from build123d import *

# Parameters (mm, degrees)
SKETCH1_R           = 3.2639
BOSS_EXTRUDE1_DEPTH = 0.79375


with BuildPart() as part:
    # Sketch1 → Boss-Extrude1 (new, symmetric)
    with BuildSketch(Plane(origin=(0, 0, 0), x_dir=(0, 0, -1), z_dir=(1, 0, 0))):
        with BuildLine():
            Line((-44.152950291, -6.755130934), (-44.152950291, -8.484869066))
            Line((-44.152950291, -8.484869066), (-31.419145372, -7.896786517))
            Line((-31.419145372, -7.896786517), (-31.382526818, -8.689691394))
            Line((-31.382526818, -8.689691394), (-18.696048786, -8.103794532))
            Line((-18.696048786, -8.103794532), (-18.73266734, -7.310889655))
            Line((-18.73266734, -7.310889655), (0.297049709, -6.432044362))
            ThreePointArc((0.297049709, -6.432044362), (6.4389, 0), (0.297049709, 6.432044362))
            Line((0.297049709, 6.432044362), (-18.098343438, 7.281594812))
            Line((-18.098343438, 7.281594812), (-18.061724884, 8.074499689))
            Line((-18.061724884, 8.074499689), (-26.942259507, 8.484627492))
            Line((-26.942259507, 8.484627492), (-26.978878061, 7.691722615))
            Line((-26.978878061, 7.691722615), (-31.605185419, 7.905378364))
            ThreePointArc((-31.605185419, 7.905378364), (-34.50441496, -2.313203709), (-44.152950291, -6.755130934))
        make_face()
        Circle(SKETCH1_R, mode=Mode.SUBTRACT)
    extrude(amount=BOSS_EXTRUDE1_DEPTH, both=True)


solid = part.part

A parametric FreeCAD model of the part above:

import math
import FreeCAD as App
import Part
import Sketcher

V = App.Vector
Q = App.Units.Quantity

doc = App.newDocument("Part")
body = doc.addObject("PartDesign::Body", "Body")

# Sketch on YZ plane
sketch1 = doc.addObject("Sketcher::SketchObject", "Sketch")
body.addObject(sketch1)
sketch1.AttachmentSupport = (doc.YZ_Plane, [""])
sketch1.MapMode = "FlatFace"
sketch1.addGeometry([
    Part.LineSegment(V(-6.755131, 44.15295, 0), V(-8.484869, 44.15295, 0)),  # 0
    Part.LineSegment(V(-8.484869, 44.15295, 0), V(-7.896787, 31.419145, 0)),  # 1
    Part.LineSegment(V(-7.896787, 31.419145, 0), V(-8.689691, 31.382527, 0)),  # 2
    Part.LineSegment(V(-8.689691, 31.382527, 0), V(-8.103795, 18.696049, 0)),  # 3
    Part.LineSegment(V(-8.103795, 18.696049, 0), V(-7.31089, 18.732667, 0)),  # 4
    Part.LineSegment(V(-7.31089, 18.732667, 0), V(-6.432044, -0.29705, 0)),  # 5
    Part.ArcOfCircle(Part.Circle(V(0, 0, 0), V(0, 0, 1), 6.4389), math.radians(-177.3558), math.radians(-2.6442)),  # 6
    Part.LineSegment(V(6.432044, -0.29705, 0), V(7.281595, 18.098343, 0)),  # 7
    Part.LineSegment(V(7.281595, 18.098343, 0), V(8.0745, 18.061725, 0)),  # 8
    Part.LineSegment(V(8.0745, 18.061725, 0), V(8.484627, 26.94226, 0)),  # 9
    Part.LineSegment(V(8.484627, 26.94226, 0), V(7.691723, 26.978878, 0)),  # 10
    Part.LineSegment(V(7.691723, 26.978878, 0), V(7.905378, 31.605185, 0)),  # 11
    Part.ArcOfCircle(Part.Circle(V(5.944869, 44.15295, 0), V(0, 0, 1), 12.7), math.radians(-180), math.radians(-81.119693)),  # 12
    Part.Circle(V(0, 0, 0), V(0, 0, 1), 3.2639),  # 13
], False)
sketch1.addConstraint([
    Sketcher.Constraint("Coincident", 0, 2, 1, 1),
    Sketcher.Constraint("Coincident", 1, 2, 2, 1),
    Sketcher.Constraint("Coincident", 2, 2, 3, 1),
    Sketcher.Constraint("Coincident", 3, 2, 4, 1),
    Sketcher.Constraint("Coincident", 4, 2, 5, 1),
    Sketcher.Constraint("Tangent", 5, 2, 6, 1),
    Sketcher.Constraint("Tangent", 6, 2, 7, 1),
    Sketcher.Constraint("Coincident", 7, 2, 8, 1),
    Sketcher.Constraint("Coincident", 8, 2, 9, 1),
    Sketcher.Constraint("Coincident", 9, 2, 10, 1),
    Sketcher.Constraint("Coincident", 10, 2, 11, 1),
    Sketcher.Constraint("Coincident", 11, 2, 12, 2),
    Sketcher.Constraint("Coincident", 12, 1, 0, 1),
    Sketcher.Constraint("Horizontal", 0),
    Sketcher.Constraint("Coincident", 6, 3, -1, 1),
    Sketcher.Constraint("Coincident", 13, 3, -1, 1),
    Sketcher.Constraint("Perpendicular", 1, 2),
    Sketcher.Constraint("Perpendicular", 2, 3),
    Sketcher.Constraint("Perpendicular", 3, 4),
    Sketcher.Constraint("Perpendicular", 4, 5),
    Sketcher.Constraint("Perpendicular", 7, 8),
    Sketcher.Constraint("Perpendicular", 8, 9),
    Sketcher.Constraint("Perpendicular", 9, 10),
    Sketcher.Constraint("Perpendicular", 10, 11),
    Sketcher.Constraint("Horizontal", 12, 3, 0, 2),
    Sketcher.Constraint("Horizontal", 5, 2, 6, 2),
    Sketcher.Constraint("Equal", 2, 4),
    Sketcher.Constraint("Equal", 4, 8),
    Sketcher.Constraint("Equal", 8, 10),
    Sketcher.Constraint("Radius", 12, Q("0.5 in")),
    Sketcher.Constraint("Diameter", 13, Q("0.257 in")),
    Sketcher.Constraint("Distance", 3, Q("0.5 in")),
    Sketcher.Constraint("Radius", 6, Q("0.2535 in")),
    Sketcher.Constraint("Distance", 5, Q("0.75 in")),
    Sketcher.Constraint("Distance", 9, Q("0.35 in")),
    Sketcher.Constraint("Distance", 2, Q("0.03125 in")),
    Sketcher.Constraint("Distance", 7, Q("0.725 in")),
    Sketcher.Constraint("DistanceX", 0, 2, 0, 1, Q("0.0680999 in")),
    Sketcher.Constraint("DistanceX", -1, 1, 8, 2, Q("8.0745 mm")),
    Sketcher.Constraint("DistanceY", 3, 2, 0, 2, Q("25.456902 mm")),
])
pad1 = doc.addObject("PartDesign::Pad", "Pad")
body.addObject(pad1)
pad1.Profile = sketch1
pad1.Length = Q("0.0625 in")
pad1.Midplane = True

doc.recompute()
